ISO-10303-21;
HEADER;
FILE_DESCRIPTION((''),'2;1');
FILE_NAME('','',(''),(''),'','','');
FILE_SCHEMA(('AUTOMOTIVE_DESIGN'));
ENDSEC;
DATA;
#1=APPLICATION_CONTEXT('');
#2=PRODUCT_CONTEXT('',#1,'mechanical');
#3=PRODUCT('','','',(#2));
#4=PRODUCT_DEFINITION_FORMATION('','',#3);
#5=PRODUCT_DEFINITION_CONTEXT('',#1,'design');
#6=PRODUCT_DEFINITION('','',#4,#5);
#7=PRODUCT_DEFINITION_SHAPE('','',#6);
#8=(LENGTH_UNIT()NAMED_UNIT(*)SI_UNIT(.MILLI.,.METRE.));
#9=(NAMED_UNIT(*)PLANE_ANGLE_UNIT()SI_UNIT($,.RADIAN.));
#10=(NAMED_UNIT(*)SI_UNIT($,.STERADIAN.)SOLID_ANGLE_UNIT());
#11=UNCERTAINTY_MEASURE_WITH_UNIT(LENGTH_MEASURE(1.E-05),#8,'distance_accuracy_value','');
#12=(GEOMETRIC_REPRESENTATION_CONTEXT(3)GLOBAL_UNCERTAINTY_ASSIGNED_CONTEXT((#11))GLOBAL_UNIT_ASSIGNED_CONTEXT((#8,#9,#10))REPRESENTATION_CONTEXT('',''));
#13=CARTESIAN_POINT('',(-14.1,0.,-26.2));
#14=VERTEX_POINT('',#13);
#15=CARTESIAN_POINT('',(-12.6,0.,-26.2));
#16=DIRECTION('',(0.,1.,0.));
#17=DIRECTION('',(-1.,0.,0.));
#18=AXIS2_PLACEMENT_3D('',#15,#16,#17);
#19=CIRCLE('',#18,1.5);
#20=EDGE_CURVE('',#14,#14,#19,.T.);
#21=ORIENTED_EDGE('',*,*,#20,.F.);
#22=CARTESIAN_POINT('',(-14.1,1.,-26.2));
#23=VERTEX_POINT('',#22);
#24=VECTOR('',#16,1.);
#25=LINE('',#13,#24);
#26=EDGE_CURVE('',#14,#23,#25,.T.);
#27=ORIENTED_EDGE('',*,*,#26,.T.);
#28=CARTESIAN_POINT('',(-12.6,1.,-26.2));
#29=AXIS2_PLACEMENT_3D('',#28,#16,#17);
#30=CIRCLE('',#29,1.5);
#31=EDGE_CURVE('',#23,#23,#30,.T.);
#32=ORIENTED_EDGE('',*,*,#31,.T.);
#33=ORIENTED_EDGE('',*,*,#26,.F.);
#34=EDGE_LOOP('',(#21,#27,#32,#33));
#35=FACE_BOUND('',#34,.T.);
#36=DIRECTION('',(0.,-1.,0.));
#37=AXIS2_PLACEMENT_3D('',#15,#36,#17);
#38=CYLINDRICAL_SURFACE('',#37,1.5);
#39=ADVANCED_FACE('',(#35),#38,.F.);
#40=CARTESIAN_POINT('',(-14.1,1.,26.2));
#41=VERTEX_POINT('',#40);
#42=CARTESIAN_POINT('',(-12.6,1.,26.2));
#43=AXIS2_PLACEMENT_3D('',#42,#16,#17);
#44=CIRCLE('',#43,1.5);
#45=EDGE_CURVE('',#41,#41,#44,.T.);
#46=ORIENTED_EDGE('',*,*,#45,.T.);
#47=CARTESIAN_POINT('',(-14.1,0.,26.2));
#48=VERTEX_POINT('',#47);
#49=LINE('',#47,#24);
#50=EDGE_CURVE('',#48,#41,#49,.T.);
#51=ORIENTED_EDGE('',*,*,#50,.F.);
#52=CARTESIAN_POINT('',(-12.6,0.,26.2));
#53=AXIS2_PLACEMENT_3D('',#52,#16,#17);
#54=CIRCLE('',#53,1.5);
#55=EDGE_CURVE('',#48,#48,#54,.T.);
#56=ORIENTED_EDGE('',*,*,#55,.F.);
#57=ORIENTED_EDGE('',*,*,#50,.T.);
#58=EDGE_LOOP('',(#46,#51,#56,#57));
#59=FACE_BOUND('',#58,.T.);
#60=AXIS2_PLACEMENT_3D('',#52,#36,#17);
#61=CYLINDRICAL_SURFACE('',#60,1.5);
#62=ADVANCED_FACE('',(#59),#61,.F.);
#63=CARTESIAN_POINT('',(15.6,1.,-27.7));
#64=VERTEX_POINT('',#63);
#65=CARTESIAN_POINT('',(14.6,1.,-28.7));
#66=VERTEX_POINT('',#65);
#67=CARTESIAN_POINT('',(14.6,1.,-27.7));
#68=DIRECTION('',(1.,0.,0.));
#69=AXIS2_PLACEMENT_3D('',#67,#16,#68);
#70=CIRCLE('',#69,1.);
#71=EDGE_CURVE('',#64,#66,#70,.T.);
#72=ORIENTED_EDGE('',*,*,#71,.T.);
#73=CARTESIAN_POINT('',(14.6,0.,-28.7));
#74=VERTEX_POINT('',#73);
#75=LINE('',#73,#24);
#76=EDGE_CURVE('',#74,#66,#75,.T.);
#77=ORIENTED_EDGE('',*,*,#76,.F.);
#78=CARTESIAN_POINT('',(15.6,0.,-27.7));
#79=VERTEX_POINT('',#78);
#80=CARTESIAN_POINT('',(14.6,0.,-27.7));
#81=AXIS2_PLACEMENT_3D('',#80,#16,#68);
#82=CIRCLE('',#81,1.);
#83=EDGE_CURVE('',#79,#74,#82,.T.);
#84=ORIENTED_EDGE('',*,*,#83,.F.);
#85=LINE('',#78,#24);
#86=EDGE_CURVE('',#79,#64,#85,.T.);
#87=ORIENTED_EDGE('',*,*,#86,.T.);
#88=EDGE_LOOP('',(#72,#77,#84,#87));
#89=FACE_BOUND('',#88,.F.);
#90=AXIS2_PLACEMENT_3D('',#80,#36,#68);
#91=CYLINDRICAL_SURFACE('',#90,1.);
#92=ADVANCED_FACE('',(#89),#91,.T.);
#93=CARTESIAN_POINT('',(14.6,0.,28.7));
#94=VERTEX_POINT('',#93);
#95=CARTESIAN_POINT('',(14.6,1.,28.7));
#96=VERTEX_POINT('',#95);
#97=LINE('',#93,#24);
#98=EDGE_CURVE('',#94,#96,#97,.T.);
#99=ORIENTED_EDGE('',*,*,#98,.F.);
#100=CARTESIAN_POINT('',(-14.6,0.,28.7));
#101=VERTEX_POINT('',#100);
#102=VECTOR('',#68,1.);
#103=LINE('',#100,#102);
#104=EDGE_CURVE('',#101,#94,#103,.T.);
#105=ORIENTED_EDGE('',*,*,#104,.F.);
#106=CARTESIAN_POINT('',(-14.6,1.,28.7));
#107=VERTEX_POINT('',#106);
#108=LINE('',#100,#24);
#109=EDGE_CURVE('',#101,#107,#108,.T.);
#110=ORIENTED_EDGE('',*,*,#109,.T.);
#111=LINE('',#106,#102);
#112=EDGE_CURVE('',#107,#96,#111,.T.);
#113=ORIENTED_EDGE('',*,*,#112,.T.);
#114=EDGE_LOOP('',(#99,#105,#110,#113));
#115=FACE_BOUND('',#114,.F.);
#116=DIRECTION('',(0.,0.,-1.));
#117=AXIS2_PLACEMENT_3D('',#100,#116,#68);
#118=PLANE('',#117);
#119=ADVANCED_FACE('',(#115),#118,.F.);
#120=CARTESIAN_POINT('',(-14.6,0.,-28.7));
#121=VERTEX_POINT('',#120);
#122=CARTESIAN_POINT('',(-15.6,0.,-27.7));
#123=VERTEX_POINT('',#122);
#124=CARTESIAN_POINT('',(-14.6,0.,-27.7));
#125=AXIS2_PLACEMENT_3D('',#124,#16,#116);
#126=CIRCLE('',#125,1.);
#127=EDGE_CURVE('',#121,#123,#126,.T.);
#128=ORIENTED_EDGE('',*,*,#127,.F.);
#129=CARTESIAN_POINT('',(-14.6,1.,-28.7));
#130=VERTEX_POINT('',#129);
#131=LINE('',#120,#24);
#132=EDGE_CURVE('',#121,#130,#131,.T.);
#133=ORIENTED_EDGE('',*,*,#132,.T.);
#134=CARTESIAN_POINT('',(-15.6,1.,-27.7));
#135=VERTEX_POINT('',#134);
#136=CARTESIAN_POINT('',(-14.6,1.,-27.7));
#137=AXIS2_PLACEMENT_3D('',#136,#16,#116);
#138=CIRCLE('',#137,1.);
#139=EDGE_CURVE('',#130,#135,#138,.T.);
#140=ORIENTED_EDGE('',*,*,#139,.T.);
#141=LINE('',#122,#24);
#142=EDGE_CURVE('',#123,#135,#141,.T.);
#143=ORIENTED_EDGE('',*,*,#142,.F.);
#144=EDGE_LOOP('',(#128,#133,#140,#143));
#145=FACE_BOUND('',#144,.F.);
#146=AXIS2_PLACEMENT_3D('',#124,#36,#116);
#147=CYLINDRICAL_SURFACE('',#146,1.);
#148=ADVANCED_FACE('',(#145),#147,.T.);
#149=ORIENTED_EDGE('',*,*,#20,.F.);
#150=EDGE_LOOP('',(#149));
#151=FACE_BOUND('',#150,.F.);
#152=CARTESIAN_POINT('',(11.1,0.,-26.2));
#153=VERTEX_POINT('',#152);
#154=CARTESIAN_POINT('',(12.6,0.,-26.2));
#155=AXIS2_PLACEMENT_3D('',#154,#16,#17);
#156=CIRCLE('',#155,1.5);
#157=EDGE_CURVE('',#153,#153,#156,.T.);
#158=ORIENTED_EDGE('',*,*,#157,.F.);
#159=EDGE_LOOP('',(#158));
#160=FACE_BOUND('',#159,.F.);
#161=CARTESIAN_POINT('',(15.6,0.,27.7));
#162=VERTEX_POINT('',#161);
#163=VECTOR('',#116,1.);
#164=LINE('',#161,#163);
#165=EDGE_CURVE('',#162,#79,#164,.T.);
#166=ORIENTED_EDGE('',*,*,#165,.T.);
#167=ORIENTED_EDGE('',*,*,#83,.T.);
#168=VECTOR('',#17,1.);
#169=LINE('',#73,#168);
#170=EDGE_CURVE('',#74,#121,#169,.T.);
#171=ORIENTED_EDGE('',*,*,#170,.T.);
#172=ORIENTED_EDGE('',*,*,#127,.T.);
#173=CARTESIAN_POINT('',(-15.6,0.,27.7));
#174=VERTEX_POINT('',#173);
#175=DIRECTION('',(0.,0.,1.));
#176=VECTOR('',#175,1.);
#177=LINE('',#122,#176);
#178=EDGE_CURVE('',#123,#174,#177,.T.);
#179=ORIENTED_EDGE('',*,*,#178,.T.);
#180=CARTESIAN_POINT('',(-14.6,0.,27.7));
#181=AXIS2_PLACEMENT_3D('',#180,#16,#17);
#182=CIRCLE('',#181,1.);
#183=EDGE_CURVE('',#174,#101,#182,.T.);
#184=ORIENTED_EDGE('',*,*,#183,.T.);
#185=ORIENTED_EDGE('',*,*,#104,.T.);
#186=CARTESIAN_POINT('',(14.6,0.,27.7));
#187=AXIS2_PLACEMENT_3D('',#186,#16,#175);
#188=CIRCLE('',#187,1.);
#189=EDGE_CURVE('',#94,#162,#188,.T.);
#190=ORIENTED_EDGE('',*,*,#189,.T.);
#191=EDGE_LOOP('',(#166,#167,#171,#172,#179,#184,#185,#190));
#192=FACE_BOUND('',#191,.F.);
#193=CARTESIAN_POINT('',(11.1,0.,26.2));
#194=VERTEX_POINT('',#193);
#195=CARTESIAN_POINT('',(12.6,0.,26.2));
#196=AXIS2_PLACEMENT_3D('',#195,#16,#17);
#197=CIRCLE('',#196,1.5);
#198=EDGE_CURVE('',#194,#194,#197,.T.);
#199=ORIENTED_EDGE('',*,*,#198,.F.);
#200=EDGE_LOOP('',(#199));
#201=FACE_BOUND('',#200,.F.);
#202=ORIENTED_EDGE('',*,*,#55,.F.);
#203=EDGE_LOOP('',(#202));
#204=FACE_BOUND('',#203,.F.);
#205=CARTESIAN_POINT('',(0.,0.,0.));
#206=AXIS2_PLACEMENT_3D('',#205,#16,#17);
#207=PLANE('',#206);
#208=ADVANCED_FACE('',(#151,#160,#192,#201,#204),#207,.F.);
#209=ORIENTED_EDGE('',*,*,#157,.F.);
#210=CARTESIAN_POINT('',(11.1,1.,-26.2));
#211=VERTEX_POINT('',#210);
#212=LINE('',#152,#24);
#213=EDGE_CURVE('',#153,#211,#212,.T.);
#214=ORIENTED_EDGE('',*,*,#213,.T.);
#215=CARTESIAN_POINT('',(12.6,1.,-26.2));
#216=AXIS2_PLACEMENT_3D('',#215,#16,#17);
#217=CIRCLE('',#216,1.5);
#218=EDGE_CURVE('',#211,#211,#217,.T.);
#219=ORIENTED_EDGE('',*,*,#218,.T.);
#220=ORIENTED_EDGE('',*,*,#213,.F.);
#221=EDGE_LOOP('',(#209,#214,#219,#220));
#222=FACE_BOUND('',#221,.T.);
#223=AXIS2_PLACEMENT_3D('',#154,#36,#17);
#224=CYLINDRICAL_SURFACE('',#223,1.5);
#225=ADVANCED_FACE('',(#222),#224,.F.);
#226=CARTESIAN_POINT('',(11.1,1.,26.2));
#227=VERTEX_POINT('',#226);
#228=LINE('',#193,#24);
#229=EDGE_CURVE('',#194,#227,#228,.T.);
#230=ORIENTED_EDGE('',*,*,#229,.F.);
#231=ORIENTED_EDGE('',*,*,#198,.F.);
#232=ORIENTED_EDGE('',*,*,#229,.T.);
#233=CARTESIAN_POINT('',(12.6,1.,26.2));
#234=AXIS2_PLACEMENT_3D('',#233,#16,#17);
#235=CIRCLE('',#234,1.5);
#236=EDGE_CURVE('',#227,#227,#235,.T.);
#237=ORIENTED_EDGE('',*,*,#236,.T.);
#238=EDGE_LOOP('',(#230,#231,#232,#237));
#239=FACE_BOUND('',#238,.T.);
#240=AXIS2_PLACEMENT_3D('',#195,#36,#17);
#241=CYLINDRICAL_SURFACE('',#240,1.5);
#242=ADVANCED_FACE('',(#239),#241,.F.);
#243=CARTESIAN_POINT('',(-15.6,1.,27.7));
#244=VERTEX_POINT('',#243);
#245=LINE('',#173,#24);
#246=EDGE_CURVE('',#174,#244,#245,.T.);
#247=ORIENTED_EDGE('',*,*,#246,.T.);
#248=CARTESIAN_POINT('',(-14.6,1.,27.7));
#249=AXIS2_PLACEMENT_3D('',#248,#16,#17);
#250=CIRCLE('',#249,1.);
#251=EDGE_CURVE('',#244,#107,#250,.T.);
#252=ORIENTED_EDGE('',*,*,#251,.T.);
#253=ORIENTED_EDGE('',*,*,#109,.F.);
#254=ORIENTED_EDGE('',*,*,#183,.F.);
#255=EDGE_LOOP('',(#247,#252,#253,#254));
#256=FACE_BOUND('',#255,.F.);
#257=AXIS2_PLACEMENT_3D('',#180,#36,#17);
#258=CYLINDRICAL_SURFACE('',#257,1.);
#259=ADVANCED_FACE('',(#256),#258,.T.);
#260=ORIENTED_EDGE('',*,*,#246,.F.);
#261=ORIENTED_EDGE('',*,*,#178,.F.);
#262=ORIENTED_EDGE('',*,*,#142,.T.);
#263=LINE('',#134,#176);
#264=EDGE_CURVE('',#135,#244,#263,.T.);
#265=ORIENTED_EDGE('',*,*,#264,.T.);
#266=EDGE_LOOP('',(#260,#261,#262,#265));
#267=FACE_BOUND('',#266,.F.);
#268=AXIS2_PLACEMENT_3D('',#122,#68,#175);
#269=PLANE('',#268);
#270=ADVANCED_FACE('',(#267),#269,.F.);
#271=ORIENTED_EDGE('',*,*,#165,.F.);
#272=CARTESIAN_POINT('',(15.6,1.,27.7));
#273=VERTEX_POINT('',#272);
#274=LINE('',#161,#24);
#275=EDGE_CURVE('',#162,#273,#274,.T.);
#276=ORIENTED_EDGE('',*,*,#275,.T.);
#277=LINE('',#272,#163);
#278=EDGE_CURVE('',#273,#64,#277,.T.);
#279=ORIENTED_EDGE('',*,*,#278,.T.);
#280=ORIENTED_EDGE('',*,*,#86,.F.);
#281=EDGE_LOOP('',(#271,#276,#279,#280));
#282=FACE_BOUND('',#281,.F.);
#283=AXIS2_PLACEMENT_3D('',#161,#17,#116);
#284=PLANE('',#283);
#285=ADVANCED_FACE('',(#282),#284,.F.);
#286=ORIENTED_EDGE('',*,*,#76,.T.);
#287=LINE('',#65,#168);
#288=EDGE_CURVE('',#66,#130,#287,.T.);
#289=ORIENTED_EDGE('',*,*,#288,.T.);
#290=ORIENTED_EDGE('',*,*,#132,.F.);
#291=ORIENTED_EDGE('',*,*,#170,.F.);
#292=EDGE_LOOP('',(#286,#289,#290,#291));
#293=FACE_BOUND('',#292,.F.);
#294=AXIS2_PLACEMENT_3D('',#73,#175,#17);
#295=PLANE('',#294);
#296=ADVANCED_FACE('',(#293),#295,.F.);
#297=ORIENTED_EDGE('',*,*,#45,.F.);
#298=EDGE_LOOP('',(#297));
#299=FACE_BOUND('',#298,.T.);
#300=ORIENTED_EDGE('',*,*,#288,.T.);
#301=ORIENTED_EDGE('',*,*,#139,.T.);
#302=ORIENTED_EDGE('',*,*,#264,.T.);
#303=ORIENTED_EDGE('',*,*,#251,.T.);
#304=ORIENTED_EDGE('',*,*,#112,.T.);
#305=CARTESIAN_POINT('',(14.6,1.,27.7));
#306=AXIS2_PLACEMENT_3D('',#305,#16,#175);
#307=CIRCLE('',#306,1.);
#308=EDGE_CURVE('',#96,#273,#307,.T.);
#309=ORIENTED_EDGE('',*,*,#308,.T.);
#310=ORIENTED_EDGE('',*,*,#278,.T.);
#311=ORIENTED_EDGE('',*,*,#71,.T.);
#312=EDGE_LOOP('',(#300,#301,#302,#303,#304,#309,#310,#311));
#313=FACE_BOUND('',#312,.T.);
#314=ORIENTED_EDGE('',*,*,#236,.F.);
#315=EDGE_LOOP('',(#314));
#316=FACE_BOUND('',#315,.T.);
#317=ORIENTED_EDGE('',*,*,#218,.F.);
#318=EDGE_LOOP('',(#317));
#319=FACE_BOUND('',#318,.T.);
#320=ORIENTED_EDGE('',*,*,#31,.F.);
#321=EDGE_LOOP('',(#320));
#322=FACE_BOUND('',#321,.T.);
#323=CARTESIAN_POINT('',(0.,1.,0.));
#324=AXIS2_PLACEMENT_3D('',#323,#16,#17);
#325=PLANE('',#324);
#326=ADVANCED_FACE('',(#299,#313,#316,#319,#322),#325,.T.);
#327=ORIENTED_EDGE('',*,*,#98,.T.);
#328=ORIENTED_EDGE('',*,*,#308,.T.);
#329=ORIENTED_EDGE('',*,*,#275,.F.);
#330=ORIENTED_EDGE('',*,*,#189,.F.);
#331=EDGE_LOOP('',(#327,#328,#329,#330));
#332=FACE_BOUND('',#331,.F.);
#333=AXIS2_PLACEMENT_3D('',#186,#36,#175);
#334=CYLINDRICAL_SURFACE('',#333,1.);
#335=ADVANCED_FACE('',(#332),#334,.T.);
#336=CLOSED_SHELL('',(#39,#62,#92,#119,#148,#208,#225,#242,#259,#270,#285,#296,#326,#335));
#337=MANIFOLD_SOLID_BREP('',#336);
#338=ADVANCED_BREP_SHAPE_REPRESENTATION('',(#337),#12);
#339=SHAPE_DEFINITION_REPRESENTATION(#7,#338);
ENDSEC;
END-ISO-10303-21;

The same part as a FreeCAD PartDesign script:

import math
import FreeCAD as App
import Part
import Sketcher

doc = App.newDocument("Part")
body = doc.addObject("PartDesign::Body", "Body")

sketch1 = body.newObject("Sketcher::SketchObject", "Sketch")
sketch1.AttachmentSupport = (doc.getObject("XZ_Plane"), [""])
sketch1.MapMode = "FlatFace"
sketch1.addGeometry([
    Part.ArcOfCircle(Part.Circle(App.Vector(-14.6, 27.7, 0), App.Vector(0, 0, 1), 1), math.radians(90), math.radians(180)),
    Part.LineSegment(App.Vector(-14.6, 28.7, 0), App.Vector(14.6, 28.7, 0)),
    Part.ArcOfCircle(Part.Circle(App.Vector(14.6, 27.7, 0), App.Vector(0, 0, 1), 1), math.radians(0), math.radians(90)),
    Part.LineSegment(App.Vector(15.6, 27.7, 0), App.Vector(15.6, -27.7, 0)),
    Part.ArcOfCircle(Part.Circle(App.Vector(14.6, -27.7, 0), App.Vector(0, 0, 1), 1), math.radians(-90), math.radians(0)),
    Part.LineSegment(App.Vector(14.6, -28.7, 0), App.Vector(-14.6, -28.7, 0)),
    Part.ArcOfCircle(Part.Circle(App.Vector(-14.6, -27.7, 0), App.Vector(0, 0, 1), 1), math.radians(180), math.radians(270)),
    Part.LineSegment(App.Vector(-15.6, -27.7, 0), App.Vector(-15.6, 27.7, 0)),
    Part.Circle(App.Vector(12.6, -26.2, 0), App.Vector(0, 0, 1), 1.5),
    Part.Circle(App.Vector(-12.6, -26.2, 0), App.Vector(0, 0, 1), 1.5),
    Part.Circle(App.Vector(12.6, 26.2, 0), App.Vector(0, 0, 1), 1.5),
    Part.Circle(App.Vector(-12.6, 26.2, 0), App.Vector(0, 0, 1), 1.5),
], False)
sketch1.addConstraint([
    Sketcher.Constraint("Tangent", 0, 1, 1, 1),
    Sketcher.Constraint("Tangent", 1, 2, 2, 2),
    Sketcher.Constraint("Tangent", 2, 1, 3, 1),
    Sketcher.Constraint("Tangent", 3, 2, 4, 2),
    Sketcher.Constraint("Tangent", 4, 1, 5, 1),
    Sketcher.Constraint("Tangent", 5, 2, 6, 2),
    Sketcher.Constraint("Tangent", 6, 1, 7, 1),
    Sketcher.Constraint("Tangent", 7, 2, 0, 2),
    Sketcher.Constraint("Horizontal", 1),
    Sketcher.Constraint("Vertical", 3),
    Sketcher.Constraint("Horizontal", 5),
    Sketcher.Constraint("Vertical", 7),
    Sketcher.Constraint("Equal", 0, 2),
    Sketcher.Constraint("Equal", 2, 4),
    Sketcher.Constraint("Equal", 4, 6),
    Sketcher.Constraint("Equal", 8, 9),
    Sketcher.Constraint("Equal", 9, 10),
    Sketcher.Constraint("Equal", 10, 11),
    Sketcher.Constraint("Symmetric", 0, 3, 4, 3, -1, 1),
    Sketcher.Constraint("Symmetric", 9, 3, 10, 3, -1, 1),
    Sketcher.Constraint("Symmetric", 8, 3, 11, 3, -1, 1),
    Sketcher.Constraint("Symmetric", 8, 3, 9, 3, -2),
    Sketcher.Constraint("Diameter", 8, 3.0),
    Sketcher.Constraint("Radius", 0, 1.0),
    Sketcher.Constraint("DistanceX", 10, 3, 2, 1, 3.0),
    Sketcher.Constraint("DistanceY", 11, 3, 0, 1, 2.5),
    Sketcher.Constraint("DistanceX", 1, 1, 1, 2, 29.2),
    Sketcher.Constraint("DistanceY", 3, 2, 3, 1, 55.4),
])
pad1 = body.newObject("PartDesign::Pad", "Pad")
pad1.Profile = sketch1
pad1.Length = 1
pad1.Reversed = True

doc.recompute()
